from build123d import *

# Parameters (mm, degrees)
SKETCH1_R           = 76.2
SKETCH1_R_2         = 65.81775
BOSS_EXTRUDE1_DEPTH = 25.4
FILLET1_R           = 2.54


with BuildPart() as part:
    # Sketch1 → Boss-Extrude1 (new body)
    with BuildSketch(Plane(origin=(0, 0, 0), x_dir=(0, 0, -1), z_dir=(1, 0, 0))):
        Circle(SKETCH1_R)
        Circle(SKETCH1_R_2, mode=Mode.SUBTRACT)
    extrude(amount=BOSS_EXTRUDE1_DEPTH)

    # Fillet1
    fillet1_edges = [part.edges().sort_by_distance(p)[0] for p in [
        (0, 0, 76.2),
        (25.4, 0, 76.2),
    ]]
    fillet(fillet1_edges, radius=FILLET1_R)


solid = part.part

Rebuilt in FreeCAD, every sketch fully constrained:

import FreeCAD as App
import Part
import Sketcher
Q = App.Units.Quantity


def edges_at(feature, points):
    """Names of the edges that pass closest to the given points."""
    edges = feature.Shape.Edges
    near = lambda p: min(range(len(edges)), key=lambda i: edges[i].distToShape(Part.Vertex(*p))[0])
    return sorted({f"Edge{near(p) + 1}" for p in points})

doc = App.newDocument("Part")
body = doc.addObject("PartDesign::Body", "Body")

# Sketch on YZ plane
sketch1 = body.newObject("Sketcher::SketchObject", "Sketch")
sketch1.AttachmentSupport = (doc.getObject("YZ_Plane"), [""])
sketch1.MapMode = "FlatFace"
sketch1.addGeometry(Part.Circle(App.Vector(0, 0, 0), App.Vector(0, 0, 1), 76), False)
sketch1.addGeometry(Part.Circle(App.Vector(0, 0, 0), App.Vector(0, 0, 1), 66), False)
sketch1.addConstraint(Sketcher.Constraint("Coincident", 0, 3, -1, 1))
sketch1.addConstraint(Sketcher.Constraint("Coincident", 1, 3, -1, 1))
sketch1.addConstraint(Sketcher.Constraint("Diameter", 0, Q("6 in")))
sketch1.addConstraint(Sketcher.Constraint("Diameter", 1, Q("5.1825 in")))
pad1 = body.newObject("PartDesign::Pad", "Pad")
pad1.Profile = sketch1
pad1.Length = Q("1 in")
doc.recompute()

fillet = body.newObject("PartDesign::Fillet", "Fillet")
fillet.Base = (pad1, edges_at(pad1, [(0, 0, 76.2), (25.4, 0, 76.2)]))
fillet.Radius = Q("0.1 in")

doc.recompute()
